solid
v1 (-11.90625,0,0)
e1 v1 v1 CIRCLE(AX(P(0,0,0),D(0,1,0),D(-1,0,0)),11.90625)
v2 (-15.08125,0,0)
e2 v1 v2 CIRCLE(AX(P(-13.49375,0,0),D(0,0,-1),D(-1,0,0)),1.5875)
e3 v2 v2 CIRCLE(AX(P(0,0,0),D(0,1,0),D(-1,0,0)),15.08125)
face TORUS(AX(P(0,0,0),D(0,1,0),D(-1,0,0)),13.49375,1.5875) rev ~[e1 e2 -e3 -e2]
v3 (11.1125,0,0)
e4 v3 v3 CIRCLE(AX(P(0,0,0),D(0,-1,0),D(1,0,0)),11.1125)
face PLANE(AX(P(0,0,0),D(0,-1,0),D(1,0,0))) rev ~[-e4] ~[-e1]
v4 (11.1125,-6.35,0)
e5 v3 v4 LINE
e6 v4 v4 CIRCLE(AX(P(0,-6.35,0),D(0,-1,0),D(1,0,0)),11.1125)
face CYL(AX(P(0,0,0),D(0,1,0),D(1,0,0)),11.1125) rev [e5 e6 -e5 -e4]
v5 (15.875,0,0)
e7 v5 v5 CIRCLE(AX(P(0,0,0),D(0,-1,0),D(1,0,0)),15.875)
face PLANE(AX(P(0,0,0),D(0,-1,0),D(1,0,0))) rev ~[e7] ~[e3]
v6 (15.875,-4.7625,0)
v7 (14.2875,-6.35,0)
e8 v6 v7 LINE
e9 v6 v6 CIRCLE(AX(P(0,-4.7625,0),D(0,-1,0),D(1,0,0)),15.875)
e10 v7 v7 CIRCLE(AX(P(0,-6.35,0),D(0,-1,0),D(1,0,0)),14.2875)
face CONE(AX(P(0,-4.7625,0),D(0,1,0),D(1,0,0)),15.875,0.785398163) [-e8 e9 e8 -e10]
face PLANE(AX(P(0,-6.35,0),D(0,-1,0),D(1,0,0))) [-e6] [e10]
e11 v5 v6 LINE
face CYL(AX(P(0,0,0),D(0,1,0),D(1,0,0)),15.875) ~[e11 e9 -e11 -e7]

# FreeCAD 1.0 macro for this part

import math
import FreeCAD as App
import Part
import Sketcher
Q = App.Units.Quantity


def edges_at(feature, points):
    """Names of the edges that pass closest to the given points."""
    edges = feature.Shape.Edges
    near = lambda p: min(range(len(edges)), key=lambda i: edges[i].distToShape(Part.Vertex(*p))[0])
    return sorted({f"Edge{near(p) + 1}" for p in points})

doc = App.newDocument("Part")
body = doc.addObject("PartDesign::Body", "Body")

# Sketch on XZ plane
sketch1 = body.newObject("Sketcher::SketchObject", "Sketch")
sketch1.AttachmentSupport = (doc.getObject("XZ_Plane"), [""])
sketch1.MapMode = "FlatFace"
sketch1.addGeometry(Part.Circle(App.Vector(0, 0, 0), App.Vector(0, 0, 1), 16), False)
sketch1.addGeometry(Part.Circle(App.Vector(0, 0, 0), App.Vector(0, 0, 1), 11), False)
sketch1.addConstraint(Sketcher.Constraint("Coincident", 0, 3, -1, 1))
sketch1.addConstraint(Sketcher.Constraint("Coincident", 1, 3, -1, 1))
sketch1.addConstraint(Sketcher.Constraint("Diameter", 0, Q("1.25 in")))
sketch1.addConstraint(Sketcher.Constraint("Diameter", 1, Q("0.875 in")))
pad1 = body.newObject("PartDesign::Pad", "Pad")
pad1.Profile = sketch1
pad1.Length = Q("0.25 in")
doc.recompute()

chamfer = body.newObject("PartDesign::Chamfer", "Chamfer")
chamfer.Base = (pad1, edges_at(pad1, [(-15.875, -6.35, 0)]))
chamfer.Size = Q("0.0625 in")

# Sketch on YZ plane
sketch2 = body.newObject("Sketcher::SketchObject", "Sketch001")
sketch2.AttachmentSupport = (doc.getObject("YZ_Plane"), [""])
sketch2.MapMode = "FlatFace"
sketch2.addGeometry(Part.ArcOfCircle(Part.Circle(App.Vector(0, 13.5, 0), App.Vector(0, 0, 1), 1.6), math.radians(0), math.radians(90)), False)
sketch2.addGeometry(Part.ArcOfCircle(Part.Circle(App.Vector(0, 13.5, 0), App.Vector(0, 0, 1), 1.6), math.radians(90), math.radians(270)), False)
sketch2.addGeometry(Part.ArcOfCircle(Part.Circle(App.Vector(0, 13.5, 0), App.Vector(0, 0, 1), 1.6), math.radians(-90), math.radians(0)), False)
sketch2.addConstraint(Sketcher.Constraint("Tangent", 0, 2, 1, 1))
sketch2.addConstraint(Sketcher.Constraint("Tangent", 1, 2, 2, 1))
sketch2.addConstraint(Sketcher.Constraint("Tangent", 2, 2, 0, 1))
sketch2.addConstraint(Sketcher.Constraint("PointOnObject", 0, 3, -2))
sketch2.addConstraint(Sketcher.Constraint("PointOnObject", 0, 2, -2))
sketch2.addConstraint(Sketcher.Constraint("PointOnObject", 1, 2, -2))
sketch2.addConstraint(Sketcher.Constraint("Horizontal", 1, 3, 2, 2))
sketch2.addConstraint(Sketcher.Constraint("Radius", 0, Q("0.0625 in")))
sketch2.addConstraint(Sketcher.Constraint("DistanceY", -1, 1, 0, 3, Q("0.53125 in")))

# Sketch on XZ plane
sketch3 = body.newObject("Sketcher::SketchObject", "Sketch002")
sketch3.AttachmentSupport = (doc.getObject("XZ_Plane"), [""])
sketch3.MapMode = "FlatFace"
sketch3.addGeometry(Part.Circle(App.Vector(0, 0, 0), App.Vector(0, 0, 1), 12), False)
sketch3.addConstraint(Sketcher.Constraint("Coincident", 0, 3, -1, 1))
sketch3.addConstraint(Sketcher.Constraint("Diameter", 0, Q("0.9375 in")))
doc.recompute()

subtractivepipe = body.newObject("PartDesign::SubtractivePipe", "SubtractivePipe")
subtractivepipe.Profile = sketch2
subtractivepipe.Spine = (sketch3, ["Edge1"])

doc.recompute()
